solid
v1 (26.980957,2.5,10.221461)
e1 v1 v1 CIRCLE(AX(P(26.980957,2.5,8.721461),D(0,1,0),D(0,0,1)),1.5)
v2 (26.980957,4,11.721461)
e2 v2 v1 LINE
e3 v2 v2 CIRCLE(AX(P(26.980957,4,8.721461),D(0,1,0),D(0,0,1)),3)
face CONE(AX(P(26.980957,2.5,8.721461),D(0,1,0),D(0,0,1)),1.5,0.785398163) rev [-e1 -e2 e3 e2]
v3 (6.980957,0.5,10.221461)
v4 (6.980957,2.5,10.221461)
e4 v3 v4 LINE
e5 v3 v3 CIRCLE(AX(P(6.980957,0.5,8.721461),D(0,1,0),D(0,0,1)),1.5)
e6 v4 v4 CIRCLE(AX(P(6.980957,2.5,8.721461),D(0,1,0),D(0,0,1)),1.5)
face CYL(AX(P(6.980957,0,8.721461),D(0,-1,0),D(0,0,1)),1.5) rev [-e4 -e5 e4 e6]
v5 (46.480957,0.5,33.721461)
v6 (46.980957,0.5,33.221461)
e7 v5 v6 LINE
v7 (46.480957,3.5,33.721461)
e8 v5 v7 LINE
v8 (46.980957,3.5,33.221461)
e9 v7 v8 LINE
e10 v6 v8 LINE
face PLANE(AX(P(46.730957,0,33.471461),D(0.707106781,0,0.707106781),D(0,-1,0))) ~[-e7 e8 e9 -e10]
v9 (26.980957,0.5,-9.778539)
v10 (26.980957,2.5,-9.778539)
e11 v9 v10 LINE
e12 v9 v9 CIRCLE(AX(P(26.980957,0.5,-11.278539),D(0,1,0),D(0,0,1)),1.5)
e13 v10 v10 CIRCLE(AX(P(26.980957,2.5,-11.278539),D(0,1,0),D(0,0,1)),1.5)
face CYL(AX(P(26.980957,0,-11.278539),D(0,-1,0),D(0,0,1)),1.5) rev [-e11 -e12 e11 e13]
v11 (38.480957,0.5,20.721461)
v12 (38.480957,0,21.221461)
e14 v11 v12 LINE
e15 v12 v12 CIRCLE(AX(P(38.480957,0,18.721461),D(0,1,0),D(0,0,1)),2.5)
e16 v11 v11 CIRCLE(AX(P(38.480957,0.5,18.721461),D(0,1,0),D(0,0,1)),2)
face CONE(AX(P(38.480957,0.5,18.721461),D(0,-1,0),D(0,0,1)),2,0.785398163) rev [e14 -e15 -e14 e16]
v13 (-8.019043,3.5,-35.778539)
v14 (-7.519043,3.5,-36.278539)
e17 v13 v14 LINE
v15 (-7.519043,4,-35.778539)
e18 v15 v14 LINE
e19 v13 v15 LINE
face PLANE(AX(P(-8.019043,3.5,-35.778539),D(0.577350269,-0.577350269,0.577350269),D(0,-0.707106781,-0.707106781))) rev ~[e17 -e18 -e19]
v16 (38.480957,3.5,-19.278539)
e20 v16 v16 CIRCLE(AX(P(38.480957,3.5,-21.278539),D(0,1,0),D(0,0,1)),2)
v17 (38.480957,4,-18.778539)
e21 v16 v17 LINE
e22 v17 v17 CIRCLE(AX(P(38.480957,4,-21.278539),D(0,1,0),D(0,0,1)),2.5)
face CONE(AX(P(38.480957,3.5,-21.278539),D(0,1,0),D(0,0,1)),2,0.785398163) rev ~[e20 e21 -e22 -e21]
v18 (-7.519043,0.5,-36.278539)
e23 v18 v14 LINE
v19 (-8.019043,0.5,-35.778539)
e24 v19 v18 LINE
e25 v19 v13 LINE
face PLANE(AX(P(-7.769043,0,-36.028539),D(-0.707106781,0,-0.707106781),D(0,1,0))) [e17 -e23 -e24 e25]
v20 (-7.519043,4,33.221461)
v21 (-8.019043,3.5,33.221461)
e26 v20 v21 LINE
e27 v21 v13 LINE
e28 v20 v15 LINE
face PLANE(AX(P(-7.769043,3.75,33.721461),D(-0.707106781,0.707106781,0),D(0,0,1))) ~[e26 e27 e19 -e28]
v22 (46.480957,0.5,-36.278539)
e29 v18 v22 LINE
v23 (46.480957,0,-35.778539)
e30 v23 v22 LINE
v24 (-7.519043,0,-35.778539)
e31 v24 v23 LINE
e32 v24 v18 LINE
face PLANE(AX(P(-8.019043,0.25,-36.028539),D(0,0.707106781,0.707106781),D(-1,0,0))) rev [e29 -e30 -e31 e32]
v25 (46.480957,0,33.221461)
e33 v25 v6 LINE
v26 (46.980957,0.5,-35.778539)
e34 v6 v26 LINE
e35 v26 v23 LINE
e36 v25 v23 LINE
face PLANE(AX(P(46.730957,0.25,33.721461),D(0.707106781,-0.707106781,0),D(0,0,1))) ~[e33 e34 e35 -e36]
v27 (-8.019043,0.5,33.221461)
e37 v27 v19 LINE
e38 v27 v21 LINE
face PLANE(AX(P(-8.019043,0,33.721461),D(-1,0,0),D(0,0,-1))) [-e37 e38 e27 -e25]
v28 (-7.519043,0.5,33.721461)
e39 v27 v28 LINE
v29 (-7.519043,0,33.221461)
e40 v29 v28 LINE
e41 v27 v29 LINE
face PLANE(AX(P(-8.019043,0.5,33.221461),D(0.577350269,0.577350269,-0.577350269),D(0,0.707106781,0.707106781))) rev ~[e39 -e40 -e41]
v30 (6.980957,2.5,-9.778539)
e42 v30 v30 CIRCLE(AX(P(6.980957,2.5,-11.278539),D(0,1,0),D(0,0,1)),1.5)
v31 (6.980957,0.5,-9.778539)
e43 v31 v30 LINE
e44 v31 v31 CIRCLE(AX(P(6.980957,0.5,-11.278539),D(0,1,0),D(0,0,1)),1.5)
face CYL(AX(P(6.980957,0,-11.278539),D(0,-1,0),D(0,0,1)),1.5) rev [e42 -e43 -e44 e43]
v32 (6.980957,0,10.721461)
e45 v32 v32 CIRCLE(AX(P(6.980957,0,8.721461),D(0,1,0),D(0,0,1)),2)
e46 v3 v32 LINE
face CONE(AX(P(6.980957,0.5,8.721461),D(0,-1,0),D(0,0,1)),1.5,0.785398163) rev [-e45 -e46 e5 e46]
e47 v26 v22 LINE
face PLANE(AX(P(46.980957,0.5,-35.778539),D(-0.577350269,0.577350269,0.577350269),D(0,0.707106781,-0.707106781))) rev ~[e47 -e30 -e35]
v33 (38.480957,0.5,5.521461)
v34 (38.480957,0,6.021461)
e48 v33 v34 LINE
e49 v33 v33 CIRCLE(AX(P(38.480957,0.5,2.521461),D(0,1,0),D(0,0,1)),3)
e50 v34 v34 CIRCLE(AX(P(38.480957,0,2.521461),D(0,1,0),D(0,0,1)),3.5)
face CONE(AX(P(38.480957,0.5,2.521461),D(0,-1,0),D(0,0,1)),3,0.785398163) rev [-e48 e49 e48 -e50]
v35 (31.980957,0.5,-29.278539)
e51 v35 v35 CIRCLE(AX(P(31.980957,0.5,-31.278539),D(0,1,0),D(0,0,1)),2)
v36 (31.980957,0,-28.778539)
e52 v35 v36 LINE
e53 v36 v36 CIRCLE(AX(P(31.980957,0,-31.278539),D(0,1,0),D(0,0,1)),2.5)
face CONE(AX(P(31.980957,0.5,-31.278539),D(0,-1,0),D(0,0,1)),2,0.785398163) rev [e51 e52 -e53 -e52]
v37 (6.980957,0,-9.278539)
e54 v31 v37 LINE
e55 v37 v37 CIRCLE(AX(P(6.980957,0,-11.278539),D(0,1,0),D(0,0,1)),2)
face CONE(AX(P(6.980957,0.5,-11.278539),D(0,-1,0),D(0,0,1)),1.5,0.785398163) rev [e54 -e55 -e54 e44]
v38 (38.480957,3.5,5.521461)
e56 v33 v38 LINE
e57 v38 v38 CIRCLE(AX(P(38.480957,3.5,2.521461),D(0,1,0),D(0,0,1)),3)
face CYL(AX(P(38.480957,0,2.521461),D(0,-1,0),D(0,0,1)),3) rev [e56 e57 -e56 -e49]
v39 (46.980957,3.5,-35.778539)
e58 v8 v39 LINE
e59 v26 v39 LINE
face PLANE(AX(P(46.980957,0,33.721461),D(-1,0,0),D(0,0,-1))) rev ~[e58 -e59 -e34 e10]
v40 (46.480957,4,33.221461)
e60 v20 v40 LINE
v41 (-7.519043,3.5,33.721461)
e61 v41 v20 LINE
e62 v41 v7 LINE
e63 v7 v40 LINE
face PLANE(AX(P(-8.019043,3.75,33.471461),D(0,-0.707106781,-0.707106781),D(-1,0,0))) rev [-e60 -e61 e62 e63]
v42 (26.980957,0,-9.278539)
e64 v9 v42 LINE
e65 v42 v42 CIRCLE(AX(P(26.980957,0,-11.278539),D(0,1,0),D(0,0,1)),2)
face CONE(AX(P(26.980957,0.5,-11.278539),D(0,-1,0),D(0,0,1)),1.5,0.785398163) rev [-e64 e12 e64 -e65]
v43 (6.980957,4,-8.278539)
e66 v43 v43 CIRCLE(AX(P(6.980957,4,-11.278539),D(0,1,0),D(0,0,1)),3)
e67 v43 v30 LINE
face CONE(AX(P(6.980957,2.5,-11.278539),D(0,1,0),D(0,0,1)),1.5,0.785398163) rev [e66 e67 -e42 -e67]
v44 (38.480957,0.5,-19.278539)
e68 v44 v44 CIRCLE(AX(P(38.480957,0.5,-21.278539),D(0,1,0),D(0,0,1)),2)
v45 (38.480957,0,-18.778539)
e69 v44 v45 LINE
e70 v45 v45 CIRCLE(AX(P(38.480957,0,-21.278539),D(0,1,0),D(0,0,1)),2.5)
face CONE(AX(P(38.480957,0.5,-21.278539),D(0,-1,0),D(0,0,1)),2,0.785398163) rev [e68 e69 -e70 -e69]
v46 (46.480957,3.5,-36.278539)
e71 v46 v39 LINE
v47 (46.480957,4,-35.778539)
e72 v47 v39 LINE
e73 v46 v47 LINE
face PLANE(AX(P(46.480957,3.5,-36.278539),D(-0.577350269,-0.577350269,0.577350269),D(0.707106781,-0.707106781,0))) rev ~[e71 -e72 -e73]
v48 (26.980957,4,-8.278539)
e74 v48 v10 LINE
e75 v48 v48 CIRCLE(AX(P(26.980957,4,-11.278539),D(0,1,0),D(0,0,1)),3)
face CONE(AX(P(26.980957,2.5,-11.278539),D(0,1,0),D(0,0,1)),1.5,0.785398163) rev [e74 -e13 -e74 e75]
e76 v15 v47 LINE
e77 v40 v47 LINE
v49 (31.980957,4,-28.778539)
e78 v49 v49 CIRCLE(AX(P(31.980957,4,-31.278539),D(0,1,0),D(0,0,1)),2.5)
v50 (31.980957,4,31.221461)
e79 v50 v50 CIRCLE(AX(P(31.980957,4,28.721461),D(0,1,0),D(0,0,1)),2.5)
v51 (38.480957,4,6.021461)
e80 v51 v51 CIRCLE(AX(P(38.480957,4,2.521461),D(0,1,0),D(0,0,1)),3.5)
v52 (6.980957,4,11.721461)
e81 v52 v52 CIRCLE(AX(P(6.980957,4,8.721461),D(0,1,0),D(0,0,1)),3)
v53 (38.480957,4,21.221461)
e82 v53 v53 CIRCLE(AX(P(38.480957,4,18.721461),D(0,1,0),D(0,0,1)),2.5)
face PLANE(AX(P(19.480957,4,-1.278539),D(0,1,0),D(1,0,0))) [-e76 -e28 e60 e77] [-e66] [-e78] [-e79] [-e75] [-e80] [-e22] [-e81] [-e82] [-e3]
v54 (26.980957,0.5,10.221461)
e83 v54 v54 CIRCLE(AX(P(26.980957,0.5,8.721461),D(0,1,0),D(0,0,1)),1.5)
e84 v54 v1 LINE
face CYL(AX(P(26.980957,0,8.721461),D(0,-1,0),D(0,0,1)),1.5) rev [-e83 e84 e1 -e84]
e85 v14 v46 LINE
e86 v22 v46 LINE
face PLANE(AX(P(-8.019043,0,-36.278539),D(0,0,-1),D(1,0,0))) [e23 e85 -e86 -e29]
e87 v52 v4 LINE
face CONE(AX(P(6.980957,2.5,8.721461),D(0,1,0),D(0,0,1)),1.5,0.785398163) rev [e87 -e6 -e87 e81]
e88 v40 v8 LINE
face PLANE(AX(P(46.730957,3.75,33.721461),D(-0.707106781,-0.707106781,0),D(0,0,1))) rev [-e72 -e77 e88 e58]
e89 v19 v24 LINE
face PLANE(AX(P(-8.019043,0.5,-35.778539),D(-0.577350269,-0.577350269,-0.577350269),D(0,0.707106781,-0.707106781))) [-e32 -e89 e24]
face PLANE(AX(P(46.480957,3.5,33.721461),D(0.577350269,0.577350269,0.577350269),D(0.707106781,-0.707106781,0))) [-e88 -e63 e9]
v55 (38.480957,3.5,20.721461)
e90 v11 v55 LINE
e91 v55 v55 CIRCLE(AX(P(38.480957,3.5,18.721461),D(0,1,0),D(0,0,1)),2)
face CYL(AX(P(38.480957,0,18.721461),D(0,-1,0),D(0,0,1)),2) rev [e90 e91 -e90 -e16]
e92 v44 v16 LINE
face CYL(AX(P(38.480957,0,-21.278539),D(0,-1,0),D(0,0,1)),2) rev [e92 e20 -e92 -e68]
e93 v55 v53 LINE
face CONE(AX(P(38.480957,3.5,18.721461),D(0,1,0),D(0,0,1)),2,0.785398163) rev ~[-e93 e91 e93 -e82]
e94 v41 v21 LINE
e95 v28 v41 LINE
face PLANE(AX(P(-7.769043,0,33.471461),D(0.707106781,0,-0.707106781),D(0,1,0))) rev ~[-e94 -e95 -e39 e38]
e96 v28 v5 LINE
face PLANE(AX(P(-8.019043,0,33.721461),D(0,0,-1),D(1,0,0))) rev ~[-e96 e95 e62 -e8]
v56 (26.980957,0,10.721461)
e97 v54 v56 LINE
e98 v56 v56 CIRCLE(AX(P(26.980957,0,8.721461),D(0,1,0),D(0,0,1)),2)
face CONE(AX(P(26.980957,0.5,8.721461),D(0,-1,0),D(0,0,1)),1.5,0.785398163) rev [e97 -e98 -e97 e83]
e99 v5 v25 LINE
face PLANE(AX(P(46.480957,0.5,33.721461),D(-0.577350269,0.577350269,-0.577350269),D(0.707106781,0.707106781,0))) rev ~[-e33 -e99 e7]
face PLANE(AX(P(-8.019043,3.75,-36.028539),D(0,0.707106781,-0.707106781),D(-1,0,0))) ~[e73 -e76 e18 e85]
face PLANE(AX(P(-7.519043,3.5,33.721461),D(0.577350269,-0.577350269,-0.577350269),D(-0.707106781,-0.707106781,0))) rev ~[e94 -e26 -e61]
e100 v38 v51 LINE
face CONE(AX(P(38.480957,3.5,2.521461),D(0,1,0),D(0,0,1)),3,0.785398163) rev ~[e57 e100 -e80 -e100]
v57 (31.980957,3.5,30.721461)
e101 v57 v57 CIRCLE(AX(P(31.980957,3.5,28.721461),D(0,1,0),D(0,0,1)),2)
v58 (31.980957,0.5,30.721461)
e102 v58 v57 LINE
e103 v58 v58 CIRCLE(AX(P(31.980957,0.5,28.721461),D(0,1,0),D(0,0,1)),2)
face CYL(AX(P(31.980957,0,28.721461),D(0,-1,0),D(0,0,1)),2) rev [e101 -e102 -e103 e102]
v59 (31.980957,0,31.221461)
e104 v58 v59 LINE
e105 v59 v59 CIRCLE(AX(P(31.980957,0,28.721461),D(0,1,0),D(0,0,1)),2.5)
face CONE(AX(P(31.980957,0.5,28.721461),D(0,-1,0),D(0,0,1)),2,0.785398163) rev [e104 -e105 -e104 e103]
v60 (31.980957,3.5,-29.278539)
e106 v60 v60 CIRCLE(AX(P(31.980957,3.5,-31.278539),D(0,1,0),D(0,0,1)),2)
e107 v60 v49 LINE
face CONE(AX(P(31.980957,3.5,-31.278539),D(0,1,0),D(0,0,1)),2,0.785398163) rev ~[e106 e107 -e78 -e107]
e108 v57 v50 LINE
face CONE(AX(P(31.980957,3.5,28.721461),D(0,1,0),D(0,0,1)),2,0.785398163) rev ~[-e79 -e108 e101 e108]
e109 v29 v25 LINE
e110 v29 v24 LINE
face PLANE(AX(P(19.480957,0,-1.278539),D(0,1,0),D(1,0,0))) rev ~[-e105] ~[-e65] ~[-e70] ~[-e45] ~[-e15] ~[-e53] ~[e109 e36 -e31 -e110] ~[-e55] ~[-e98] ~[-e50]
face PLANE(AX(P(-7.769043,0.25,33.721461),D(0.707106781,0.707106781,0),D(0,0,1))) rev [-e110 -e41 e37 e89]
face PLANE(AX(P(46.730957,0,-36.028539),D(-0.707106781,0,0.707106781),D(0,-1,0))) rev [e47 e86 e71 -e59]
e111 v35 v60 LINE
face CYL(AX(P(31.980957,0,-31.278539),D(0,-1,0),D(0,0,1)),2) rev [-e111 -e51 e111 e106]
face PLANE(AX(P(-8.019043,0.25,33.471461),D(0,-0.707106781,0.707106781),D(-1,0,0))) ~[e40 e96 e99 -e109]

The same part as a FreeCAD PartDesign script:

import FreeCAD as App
import Part
import Sketcher


def edges_at(feature, points):
    """Names of the edges that pass closest to the given points."""
    edges = feature.Shape.Edges
    near = lambda p: min(range(len(edges)), key=lambda i: edges[i].distToShape(Part.Vertex(*p))[0])
    return sorted({f"Edge{near(p) + 1}" for p in points})


def add_polygon(sketch, points):
    """Adds a closed chain of lines whose ends are joined by coincident constraints."""
    first, n = sketch.GeometryCount, len(points)
    for a, b in zip(points, points[1:] + points[:1]):
        sketch.addGeometry(Part.LineSegment(App.Vector(*a, 0), App.Vector(*b, 0)), False)
    for i in range(n):
        sketch.addConstraint(Sketcher.Constraint("Coincident", first + i, 2, first + (i + 1) % n, 1))

doc = App.newDocument("Part")
body = doc.addObject("PartDesign::Body", "Body")

# Sketch on XZ plane
sketch1 = body.newObject("Sketcher::SketchObject", "Sketch")
sketch1.AttachmentSupport = (doc.getObject("XZ_Plane"), [""])
sketch1.MapMode = "FlatFace"
add_polygon(sketch1, [(-8, -36.3), (-8, 33.7), (47, 33.7), (47, -36.3)])  # lines 0-3
sketch1.addGeometry(Part.Circle(App.Vector(7, 8.7, 0), App.Vector(0, 0, 1), 1.5), False)  # 4
sketch1.addGeometry(Part.Circle(App.Vector(32, 28.7, 0), App.Vector(0, 0, 1), 2), False)  # 5
sketch1.addGeometry(Part.Circle(App.Vector(38.5, 18.7, 0), App.Vector(0, 0, 1), 2), False)  # 6
sketch1.addGeometry(Part.Circle(App.Vector(27, 8.7, 0), App.Vector(0, 0, 1), 1.5), False)  # 7
sketch1.addGeometry(Part.Circle(App.Vector(38.5, 2.5, 0), App.Vector(0, 0, 1), 3), False)  # 8
sketch1.addGeometry(Part.Circle(App.Vector(7, -11.3, 0), App.Vector(0, 0, 1), 1.5), False)  # 9
sketch1.addGeometry(Part.Circle(App.Vector(27, -11.3, 0), App.Vector(0, 0, 1), 1.5), False)  # 10
sketch1.addGeometry(Part.Circle(App.Vector(32, -31.3, 0), App.Vector(0, 0, 1), 2), False)  # 11
sketch1.addGeometry(Part.Circle(App.Vector(38.5, -21.3, 0), App.Vector(0, 0, 1), 2), False)  # 12
sketch1.addConstraint([
    Sketcher.Constraint("Vertical", 0),
    Sketcher.Constraint("Horizontal", 1),
    Sketcher.Constraint("Vertical", 2),
    Sketcher.Constraint("Horizontal", 3),
    Sketcher.Constraint("Equal", 5, 6),
    Sketcher.Constraint("Equal", 4, 7),
    Sketcher.Constraint("Equal", 7, 9),
    Sketcher.Constraint("Equal", 9, 10),
    Sketcher.Constraint("Equal", 6, 11),
    Sketcher.Constraint("Equal", 11, 12),
    Sketcher.Constraint("Horizontal", 4, 3, 7, 3),
    Sketcher.Constraint("Horizontal", 9, 3, 10, 3),
    Sketcher.Constraint("Vertical", 6, 3, 8, 3),
    Sketcher.Constraint("Vertical", 4, 3, 9, 3),
    Sketcher.Constraint("Vertical", 7, 3, 10, 3),
    Sketcher.Constraint("Vertical", 5, 3, 11, 3),
    Sketcher.Constraint("Vertical", 8, 3, 12, 3),
    Sketcher.Constraint("Diameter", 4, 3.0),
    Sketcher.Constraint("Diameter", 5, 4.0),
    Sketcher.Constraint("Diameter", 8, 6.0),
    Sketcher.Constraint("DistanceX", 1, 1, 1, 2, 55.0),
    Sketcher.Constraint("DistanceY", 0, 1, 0, 2, 70.0),
    Sketcher.Constraint("DistanceX", 4, 3, 5, 3, 25.0),
    Sketcher.Constraint("DistanceY", 4, 3, 5, 3, 20.0),
    Sketcher.Constraint("DistanceY", 6, 3, 5, 3, 10.0),
    Sketcher.Constraint("DistanceX", 4, 3, 7, 3, 20.0),
    Sketcher.Constraint("DistanceY", 9, 3, 4, 3, 20.0),
    Sketcher.Constraint("DistanceY", 11, 3, 10, 3, 20.0),
    Sketcher.Constraint("DistanceY", 11, 3, 12, 3, 10.0),
    Sketcher.Constraint("DistanceX", 0, 2, 4, 3, 15.0),
    Sketcher.Constraint("DistanceY", 4, 3, 0, 2, 25.0),
    Sketcher.Constraint("DistanceX", 5, 3, 6, 3, 6.5),
    Sketcher.Constraint("DistanceY", 8, 3, 7, 3, 6.2),
    Sketcher.Constraint("DistanceY", -1, 1, 4, 3, 8.721461),
    Sketcher.Constraint("DistanceX", -1, 1, 4, 3, 6.980957),
])
pad1 = body.newObject("PartDesign::Pad", "Pad")
pad1.Profile = sketch1
pad1.Length = 4
pad1.Reversed = True
doc.recompute()

chamfer = body.newObject("PartDesign::Chamfer", "Chamfer")
chamfer.Base = (pad1, edges_at(pad1, [
    (46.981, 4, -1.279),
    (6.981, 0, -12.779),
    (19.481, 4, -36.279),
    (26.981, 0, -12.779),
    (6.981, 0, 7.221),
    (26.981, 0, 7.221),
    (31.981, 0, -33.279),
    (31.981, 4, -33.279),
    (31.981, 0, 26.721),
    (31.981, 4, 26.721),
    (38.481, 0, 16.721),
    (38.481, 4, 16.721),
    (38.481, 0, -0.479),
    (38.481, 4, -0.479),
    (-8.019, 4, -1.279),
    (38.481, 0, -23.279),
    (38.481, 4, -23.279),
    (19.481, 0, -36.279),
    (46.981, 0, -1.279),
    (19.481, 0, 33.721),
    (-8.019, 0, -1.279),
    (19.481, 4, 33.721),
    (-8.019, 2, -36.279),
    (46.981, 2, -36.279),
    (46.981, 2, 33.721),
    (-8.019, 2, 33.721),
]))
chamfer.Size = 0.5
doc.recompute()

chamfer2 = body.newObject("PartDesign::Chamfer", "Chamfer001")
chamfer2.Base = (chamfer, edges_at(chamfer, [
    (6.981, 4, -12.779),
    (26.981, 4, -12.779),
    (6.981, 4, 7.221),
    (26.981, 4, 7.221),
]))
chamfer2.Size = 1.5

doc.recompute()
